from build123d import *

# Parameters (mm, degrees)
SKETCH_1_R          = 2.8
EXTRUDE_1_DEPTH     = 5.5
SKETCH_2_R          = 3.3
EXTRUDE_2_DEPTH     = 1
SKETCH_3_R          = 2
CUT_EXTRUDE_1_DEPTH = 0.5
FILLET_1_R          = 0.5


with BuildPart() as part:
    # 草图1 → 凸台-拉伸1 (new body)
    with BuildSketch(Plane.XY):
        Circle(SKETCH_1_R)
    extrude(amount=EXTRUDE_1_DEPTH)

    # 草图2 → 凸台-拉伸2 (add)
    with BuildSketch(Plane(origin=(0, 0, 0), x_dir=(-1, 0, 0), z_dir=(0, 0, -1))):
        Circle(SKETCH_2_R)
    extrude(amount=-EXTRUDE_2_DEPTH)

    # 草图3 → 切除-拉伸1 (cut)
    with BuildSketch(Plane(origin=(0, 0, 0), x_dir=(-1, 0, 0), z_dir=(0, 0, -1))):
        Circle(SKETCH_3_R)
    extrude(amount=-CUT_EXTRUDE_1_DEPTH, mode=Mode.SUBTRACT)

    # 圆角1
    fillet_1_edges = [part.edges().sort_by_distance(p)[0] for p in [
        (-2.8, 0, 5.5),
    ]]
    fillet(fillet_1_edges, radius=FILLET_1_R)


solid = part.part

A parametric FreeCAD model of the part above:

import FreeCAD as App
import Part
import Sketcher


def edges_at(feature, points):
    """Names of the edges that pass closest to the given points."""
    edges = feature.Shape.Edges
    near = lambda p: min(range(len(edges)), key=lambda i: edges[i].distToShape(Part.Vertex(*p))[0])
    return sorted({f"Edge{near(p) + 1}" for p in points})

doc = App.newDocument("Part")
body = doc.addObject("PartDesign::Body", "Body")

# Sketch on XY plane
sketch1 = body.newObject("Sketcher::SketchObject", "Sketch")
sketch1.AttachmentSupport = (doc.getObject("XY_Plane"), [""])
sketch1.MapMode = "FlatFace"
sketch1.addGeometry(Part.Circle(App.Vector(0, 0, 0), App.Vector(0, 0, 1), 2.8), False)
sketch1.addConstraint([
    Sketcher.Constraint("Coincident", 0, 3, -1, 1),
    Sketcher.Constraint("Diameter", 0, 5.6),
])
pad1 = body.newObject("PartDesign::Pad", "Pad")
pad1.Profile = sketch1
pad1.Length = 5.5

# Sketch on XY plane
sketch2 = body.newObject("Sketcher::SketchObject", "Sketch001")
sketch2.AttachmentSupport = (doc.getObject("XY_Plane"), [""])
sketch2.MapMode = "FlatFace"
sketch2.addGeometry(Part.Circle(App.Vector(0, 0, 0), App.Vector(0, 0, 1), 3.3), False)
sketch2.addConstraint([
    Sketcher.Constraint("Coincident", 0, 3, -1, 1),
    Sketcher.Constraint("Diameter", 0, 6.6),
])
pad2 = body.newObject("PartDesign::Pad", "Pad001")
pad2.Profile = sketch2
pad2.Length = 1

# Sketch on XY plane
sketch3 = body.newObject("Sketcher::SketchObject", "Sketch002")
sketch3.AttachmentSupport = (doc.getObject("XY_Plane"), [""])
sketch3.MapMode = "FlatFace"
sketch3.addGeometry(Part.Circle(App.Vector(0, 0, 0), App.Vector(0, 0, 1), 2), False)
sketch3.addConstraint([
    Sketcher.Constraint("Coincident", 0, 3, -1, 1),
    Sketcher.Constraint("Diameter", 0, 4.0),
])
pocket1 = body.newObject("PartDesign::Pocket", "Pocket")
pocket1.Profile = sketch3
pocket1.Length = 0.5
pocket1.Reversed = True
doc.recompute()

fillet = body.newObject("PartDesign::Fillet", "Fillet")
fillet.Base = (pocket1, edges_at(pocket1, [(-2.8, 0, 5.5)]))
fillet.Radius = 0.5

doc.recompute()
